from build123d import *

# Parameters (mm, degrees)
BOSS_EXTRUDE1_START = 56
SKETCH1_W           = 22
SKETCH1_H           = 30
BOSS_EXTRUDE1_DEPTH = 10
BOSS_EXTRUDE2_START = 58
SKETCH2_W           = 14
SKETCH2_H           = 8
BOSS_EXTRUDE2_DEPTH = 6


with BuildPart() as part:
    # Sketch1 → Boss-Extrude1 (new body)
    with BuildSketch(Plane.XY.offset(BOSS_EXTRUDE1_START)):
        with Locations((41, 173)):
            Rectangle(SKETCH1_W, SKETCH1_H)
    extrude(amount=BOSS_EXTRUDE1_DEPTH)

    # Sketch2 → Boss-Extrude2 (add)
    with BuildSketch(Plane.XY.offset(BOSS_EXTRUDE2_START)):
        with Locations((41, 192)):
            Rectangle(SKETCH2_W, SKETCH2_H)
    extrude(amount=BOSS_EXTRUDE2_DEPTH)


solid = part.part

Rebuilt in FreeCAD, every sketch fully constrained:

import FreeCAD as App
import Part
import Sketcher

doc = App.newDocument("Part")
body = doc.addObject("PartDesign::Body", "Body")

sketch1 = doc.addObject("Sketcher::SketchObject", "Sketch")
body.addObject(sketch1)
sketch1.AttachmentSupport = (doc.XY_Plane, [""])
sketch1.MapMode = "FlatFace"
sketch1.AttachmentOffset = App.Placement(App.Vector(0, 0, 56), App.Rotation())
sketch1.addGeometry(Part.LineSegment(App.Vector(30, 188, 0), App.Vector(30, 158, 0)), False)
sketch1.addGeometry(Part.LineSegment(App.Vector(30, 158, 0), App.Vector(52, 158, 0)), False)
sketch1.addGeometry(Part.LineSegment(App.Vector(52, 158, 0), App.Vector(52, 188, 0)), False)
sketch1.addGeometry(Part.LineSegment(App.Vector(52, 188, 0), App.Vector(30, 188, 0)), False)
sketch1.addConstraint(Sketcher.Constraint("Coincident", 0, 2, 1, 1))
sketch1.addConstraint(Sketcher.Constraint("Coincident", 1, 2, 2, 1))
sketch1.addConstraint(Sketcher.Constraint("Coincident", 2, 2, 3, 1))
sketch1.addConstraint(Sketcher.Constraint("Coincident", 3, 2, 0, 1))
sketch1.addConstraint(Sketcher.Constraint("Vertical", 0))
sketch1.addConstraint(Sketcher.Constraint("Horizontal", 1))
sketch1.addConstraint(Sketcher.Constraint("Vertical", 2))
sketch1.addConstraint(Sketcher.Constraint("Horizontal", 3))
sketch1.addConstraint(Sketcher.Constraint("DistanceX", 1, 1, 1, 2, 22.0))
sketch1.addConstraint(Sketcher.Constraint("DistanceY", 0, 2, 0, 1, 30.0))
sketch1.addConstraint(Sketcher.Constraint("DistanceX", -1, 1, 0, 2, 30.0))
sketch1.addConstraint(Sketcher.Constraint("DistanceY", -1, 1, 0, 2, 158.0))
pad1 = doc.addObject("PartDesign::Pad", "Pad")
body.addObject(pad1)
pad1.Profile = sketch1
pad1.Length = 10

sketch2 = doc.addObject("Sketcher::SketchObject", "Sketch001")
body.addObject(sketch2)
sketch2.AttachmentSupport = (doc.XY_Plane, [""])
sketch2.MapMode = "FlatFace"
sketch2.AttachmentOffset = App.Placement(App.Vector(0, 0, 58), App.Rotation())
sketch2.addGeometry(Part.LineSegment(App.Vector(34, 196, 0), App.Vector(34, 188, 0)), False)
sketch2.addGeometry(Part.LineSegment(App.Vector(34, 188, 0), App.Vector(48, 188, 0)), False)
sketch2.addGeometry(Part.LineSegment(App.Vector(48, 188, 0), App.Vector(48, 196, 0)), False)
sketch2.addGeometry(Part.LineSegment(App.Vector(48, 196, 0), App.Vector(34, 196, 0)), False)
sketch2.addConstraint(Sketcher.Constraint("Coincident", 0, 2, 1, 1))
sketch2.addConstraint(Sketcher.Constraint("Coincident", 1, 2, 2, 1))
sketch2.addConstraint(Sketcher.Constraint("Coincident", 2, 2, 3, 1))
sketch2.addConstraint(Sketcher.Constraint("Coincident", 3, 2, 0, 1))
sketch2.addConstraint(Sketcher.Constraint("Vertical", 0))
sketch2.addConstraint(Sketcher.Constraint("Horizontal", 1))
sketch2.addConstraint(Sketcher.Constraint("Vertical", 2))
sketch2.addConstraint(Sketcher.Constraint("Horizontal", 3))
sketch2.addConstraint(Sketcher.Constraint("DistanceX", 1, 1, 1, 2, 14.0))
sketch2.addConstraint(Sketcher.Constraint("DistanceY", 0, 2, 0, 1, 8.0))
sketch2.addConstraint(Sketcher.Constraint("DistanceX", -1, 1, 0, 2, 34.0))
sketch2.addConstraint(Sketcher.Constraint("DistanceY", -1, 1, 0, 2, 188.0))
pad2 = doc.addObject("PartDesign::Pad", "Pad001")
body.addObject(pad2)
pad2.Profile = sketch2
pad2.Length = 6

doc.recompute()
